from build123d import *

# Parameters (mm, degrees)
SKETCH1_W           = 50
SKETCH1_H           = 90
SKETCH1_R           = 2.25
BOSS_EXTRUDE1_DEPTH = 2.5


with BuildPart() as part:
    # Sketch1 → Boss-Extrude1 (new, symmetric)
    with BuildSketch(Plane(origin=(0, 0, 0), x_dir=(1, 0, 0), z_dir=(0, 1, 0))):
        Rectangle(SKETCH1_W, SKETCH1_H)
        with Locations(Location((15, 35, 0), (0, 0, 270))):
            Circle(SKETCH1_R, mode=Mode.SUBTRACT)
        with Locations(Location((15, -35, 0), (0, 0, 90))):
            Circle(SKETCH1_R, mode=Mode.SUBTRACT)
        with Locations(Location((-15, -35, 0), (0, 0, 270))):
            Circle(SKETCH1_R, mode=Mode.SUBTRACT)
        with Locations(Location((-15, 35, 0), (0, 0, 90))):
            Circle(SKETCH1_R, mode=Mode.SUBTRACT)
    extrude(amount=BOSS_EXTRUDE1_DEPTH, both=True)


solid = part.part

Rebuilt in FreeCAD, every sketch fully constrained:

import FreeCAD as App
import Part
import Sketcher

V = App.Vector


def add_polygon(sketch, points):
    """Adds a closed chain of lines whose ends are joined by coincident constraints."""
    first, n = sketch.GeometryCount, len(points)
    for a, b in zip(points, points[1:] + points[:1]):
        sketch.addGeometry(Part.LineSegment(App.Vector(*a, 0), App.Vector(*b, 0)), False)
    for i in range(n):
        sketch.addConstraint(Sketcher.Constraint("Coincident", first + i, 2, first + (i + 1) % n, 1))

doc = App.newDocument("Part")
body = doc.addObject("PartDesign::Body", "Body")

# Sketch on XZ plane
sketch1 = body.newObject("Sketcher::SketchObject", "Sketch")
sketch1.AttachmentSupport = (doc.getObject("XZ_Plane"), [""])
sketch1.MapMode = "FlatFace"
add_polygon(sketch1, [(-25, -45), (-25, 45), (25, 45), (25, -45)])  # lines 0-3
sketch1.addGeometry(Part.Circle(V(-15, 35, 0), V(0, 0, 1), 2.2), False)  # 4
sketch1.addGeometry(Part.Circle(V(15, 35, 0), V(0, 0, 1), 2.2), False)  # 5
sketch1.addGeometry(Part.Circle(V(-15, -35, 0), V(0, 0, 1), 2.2), False)  # 6
sketch1.addGeometry(Part.Circle(V(15, -35, 0), V(0, 0, 1), 2.2), False)  # 7
sketch1.addConstraint(Sketcher.Constraint("Vertical", 0))
sketch1.addConstraint(Sketcher.Constraint("Horizontal", 1))
sketch1.addConstraint(Sketcher.Constraint("Vertical", 2))
sketch1.addConstraint(Sketcher.Constraint("Horizontal", 3))
sketch1.addConstraint(Sketcher.Constraint("Equal", 4, 5))
sketch1.addConstraint(Sketcher.Constraint("Equal", 5, 6))
sketch1.addConstraint(Sketcher.Constraint("Equal", 6, 7))
sketch1.addConstraint(Sketcher.Constraint("Symmetric", 5, 3, 6, 3, -1, 1))
sketch1.addConstraint(Sketcher.Constraint("Symmetric", 4, 3, 7, 3, -1, 1))
sketch1.addConstraint(Sketcher.Constraint("Symmetric", 0, 2, 2, 2, -1, 1))
sketch1.addConstraint(Sketcher.Constraint("Symmetric", 4, 3, 5, 3, -2))
sketch1.addConstraint(Sketcher.Constraint("Diameter", 4, 4.5))
sketch1.addConstraint(Sketcher.Constraint("DistanceX", 1, 1, 1, 2, 50.0))
sketch1.addConstraint(Sketcher.Constraint("DistanceY", 0, 1, 0, 2, 90.0))
sketch1.addConstraint(Sketcher.Constraint("DistanceX", 4, 3, -1, 1, 15.0))
sketch1.addConstraint(Sketcher.Constraint("DistanceY", -1, 1, 4, 3, 35.0))
pad1 = body.newObject("PartDesign::Pad", "Pad")
pad1.Profile = sketch1
pad1.Length = 5
pad1.Midplane = True

doc.recompute()
